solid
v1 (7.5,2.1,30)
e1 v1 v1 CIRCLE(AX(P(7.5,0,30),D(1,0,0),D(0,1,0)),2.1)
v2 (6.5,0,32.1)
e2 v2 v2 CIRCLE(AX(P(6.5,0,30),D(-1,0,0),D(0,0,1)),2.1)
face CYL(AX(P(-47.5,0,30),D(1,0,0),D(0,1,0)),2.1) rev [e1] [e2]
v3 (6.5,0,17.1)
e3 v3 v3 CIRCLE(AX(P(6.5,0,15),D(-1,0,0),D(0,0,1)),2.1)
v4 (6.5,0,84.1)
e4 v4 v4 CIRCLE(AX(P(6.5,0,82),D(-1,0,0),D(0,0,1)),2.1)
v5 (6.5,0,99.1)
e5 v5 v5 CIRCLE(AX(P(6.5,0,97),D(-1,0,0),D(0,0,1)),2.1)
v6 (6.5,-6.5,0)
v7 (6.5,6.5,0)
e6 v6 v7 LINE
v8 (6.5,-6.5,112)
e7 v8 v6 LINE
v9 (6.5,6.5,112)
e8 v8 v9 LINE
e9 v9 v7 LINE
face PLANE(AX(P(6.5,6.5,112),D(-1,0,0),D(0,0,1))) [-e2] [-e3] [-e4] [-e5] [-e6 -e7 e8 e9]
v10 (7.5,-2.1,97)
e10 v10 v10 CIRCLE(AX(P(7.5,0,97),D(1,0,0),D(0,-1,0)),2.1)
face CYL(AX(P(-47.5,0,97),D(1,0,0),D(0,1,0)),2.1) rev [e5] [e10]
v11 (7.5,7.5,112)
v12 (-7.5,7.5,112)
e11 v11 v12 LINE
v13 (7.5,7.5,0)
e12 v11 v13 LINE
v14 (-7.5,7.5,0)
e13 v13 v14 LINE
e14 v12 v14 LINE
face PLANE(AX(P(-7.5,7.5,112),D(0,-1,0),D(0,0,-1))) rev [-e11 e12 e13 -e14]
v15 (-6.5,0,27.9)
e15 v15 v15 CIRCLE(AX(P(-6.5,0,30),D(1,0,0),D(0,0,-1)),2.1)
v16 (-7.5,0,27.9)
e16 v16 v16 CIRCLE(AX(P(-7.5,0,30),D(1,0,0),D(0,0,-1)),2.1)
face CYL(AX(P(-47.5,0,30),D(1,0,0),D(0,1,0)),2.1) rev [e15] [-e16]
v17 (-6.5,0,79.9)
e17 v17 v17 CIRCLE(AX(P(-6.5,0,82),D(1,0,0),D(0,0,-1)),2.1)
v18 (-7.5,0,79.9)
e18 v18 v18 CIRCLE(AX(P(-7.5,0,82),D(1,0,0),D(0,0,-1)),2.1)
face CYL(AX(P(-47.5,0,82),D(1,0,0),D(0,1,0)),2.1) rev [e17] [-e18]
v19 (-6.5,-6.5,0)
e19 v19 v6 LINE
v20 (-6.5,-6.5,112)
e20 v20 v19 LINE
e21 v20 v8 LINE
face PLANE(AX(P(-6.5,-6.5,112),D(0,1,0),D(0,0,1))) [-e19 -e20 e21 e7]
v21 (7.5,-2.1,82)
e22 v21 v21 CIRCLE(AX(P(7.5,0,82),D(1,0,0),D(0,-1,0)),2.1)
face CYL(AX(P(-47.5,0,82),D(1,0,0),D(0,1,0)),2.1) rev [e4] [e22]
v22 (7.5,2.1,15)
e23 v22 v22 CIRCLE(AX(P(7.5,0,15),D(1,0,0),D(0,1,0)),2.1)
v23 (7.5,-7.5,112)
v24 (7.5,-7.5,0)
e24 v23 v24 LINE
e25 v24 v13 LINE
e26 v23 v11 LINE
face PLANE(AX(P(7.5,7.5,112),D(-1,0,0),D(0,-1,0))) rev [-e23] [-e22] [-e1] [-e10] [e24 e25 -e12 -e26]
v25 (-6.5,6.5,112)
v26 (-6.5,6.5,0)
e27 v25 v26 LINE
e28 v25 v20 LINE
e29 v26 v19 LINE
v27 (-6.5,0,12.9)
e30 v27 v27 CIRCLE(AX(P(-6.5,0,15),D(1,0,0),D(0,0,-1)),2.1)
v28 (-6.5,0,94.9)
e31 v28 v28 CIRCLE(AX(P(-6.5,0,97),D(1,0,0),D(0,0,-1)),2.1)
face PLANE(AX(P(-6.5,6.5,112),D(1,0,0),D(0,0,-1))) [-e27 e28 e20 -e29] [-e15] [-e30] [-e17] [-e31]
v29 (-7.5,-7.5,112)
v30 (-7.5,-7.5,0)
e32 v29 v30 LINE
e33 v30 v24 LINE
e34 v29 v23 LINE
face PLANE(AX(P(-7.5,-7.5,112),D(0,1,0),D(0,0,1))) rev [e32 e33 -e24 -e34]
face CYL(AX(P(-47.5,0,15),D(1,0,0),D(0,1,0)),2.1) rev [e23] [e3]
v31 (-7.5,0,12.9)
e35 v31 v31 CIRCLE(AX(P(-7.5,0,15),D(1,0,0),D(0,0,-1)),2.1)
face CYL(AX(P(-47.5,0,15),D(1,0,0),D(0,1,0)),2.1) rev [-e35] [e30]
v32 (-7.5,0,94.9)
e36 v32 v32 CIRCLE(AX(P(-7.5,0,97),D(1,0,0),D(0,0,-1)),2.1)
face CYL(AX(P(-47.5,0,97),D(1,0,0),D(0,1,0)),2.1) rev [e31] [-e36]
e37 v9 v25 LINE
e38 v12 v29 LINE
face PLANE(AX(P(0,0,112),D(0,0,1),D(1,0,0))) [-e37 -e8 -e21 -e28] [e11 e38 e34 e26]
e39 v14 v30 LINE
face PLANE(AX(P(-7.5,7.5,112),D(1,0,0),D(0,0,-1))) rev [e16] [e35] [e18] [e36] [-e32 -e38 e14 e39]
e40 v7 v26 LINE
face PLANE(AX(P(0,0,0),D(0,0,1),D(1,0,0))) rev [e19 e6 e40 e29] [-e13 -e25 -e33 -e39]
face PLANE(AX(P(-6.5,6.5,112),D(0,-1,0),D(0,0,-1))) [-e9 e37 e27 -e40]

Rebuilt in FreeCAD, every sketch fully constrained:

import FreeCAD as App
import Part
import Sketcher

V = App.Vector


def add_polygon(sketch, points):
    """Adds a closed chain of lines whose ends are joined by coincident constraints."""
    first, n = sketch.GeometryCount, len(points)
    for a, b in zip(points, points[1:] + points[:1]):
        sketch.addGeometry(Part.LineSegment(App.Vector(*a, 0), App.Vector(*b, 0)), False)
    for i in range(n):
        sketch.addConstraint(Sketcher.Constraint("Coincident", first + i, 2, first + (i + 1) % n, 1))

doc = App.newDocument("Part")
params = doc.addObject("Spreadsheet::Sheet", "Params")
for row, (alias, value) in enumerate([
    ("sketch1_width", "15 mm"),
    ("sketch1_width2", "13 mm"),
    ("pad1_length", "112 mm"),
    ("sketch2_diameter", "4.2 mm"),
    ("pocket1_length", "55 mm"),
], start=1):
    params.set(f"A{row}", alias)
    params.set(f"B{row}", "=" + value)
    params.setAlias(f"B{row}", alias)

body = doc.addObject("PartDesign::Body", "Body")

# Sketch on XY plane
sketch1 = body.newObject("Sketcher::SketchObject", "Sketch")
sketch1.AttachmentSupport = (doc.getObject("XY_Plane"), [""])
sketch1.MapMode = "FlatFace"
add_polygon(sketch1, [(-8, 8), (-8, -8), (8, -8), (8, 8)])  # lines 0-3
add_polygon(sketch1, [(6, -6), (-6, -6), (-6, 6), (6, 6)])  # lines 4-7
sketch1.addConstraint(Sketcher.Constraint("Vertical", 0))
sketch1.addConstraint(Sketcher.Constraint("Horizontal", 1))
sketch1.addConstraint(Sketcher.Constraint("Vertical", 2))
sketch1.addConstraint(Sketcher.Constraint("Horizontal", 3))
sketch1.addConstraint(Sketcher.Constraint("Horizontal", 4))
sketch1.addConstraint(Sketcher.Constraint("Vertical", 5))
sketch1.addConstraint(Sketcher.Constraint("Horizontal", 6))
sketch1.addConstraint(Sketcher.Constraint("Vertical", 7))
sketch1.addConstraint(Sketcher.Constraint("Symmetric", 0, 2, 2, 2, -1, 1))
sketch1.addConstraint(Sketcher.Constraint("Symmetric", 4, 2, 6, 2, -1, 1))
sketch1.addConstraint(Sketcher.Constraint("Equal", 3, 0))
sketch1.addConstraint(Sketcher.Constraint("Equal", 6, 5))
sketch1.addConstraint(Sketcher.Constraint("DistanceX", 1, 1, 1, 2, 15.0))
sketch1.addConstraint(Sketcher.Constraint("DistanceX", 4, 2, 4, 1, 13.0))
sketch1.setExpression("Constraints[20]", "Params.sketch1_width")
sketch1.setExpression("Constraints[21]", "Params.sketch1_width2")
pad1 = body.newObject("PartDesign::Pad", "Pad")
pad1.Profile = sketch1
pad1.setExpression("Length", "Params.pad1_length")

# Sketch on YZ plane
sketch2 = body.newObject("Sketcher::SketchObject", "Sketch001")
sketch2.AttachmentSupport = (doc.getObject("YZ_Plane"), [""])
sketch2.MapMode = "FlatFace"
sketch2.AttachmentOffset = App.Placement(V(0, 0, 7.5), App.Rotation())
sketch2.addGeometry(Part.Circle(V(0, 15, 0), V(0, 0, 1), 2.1), False)
sketch2.addGeometry(Part.Circle(V(0, 30, 0), V(0, 0, 1), 2.1), False)
sketch2.addGeometry(Part.Circle(V(0, 97, 0), V(0, 0, 1), 2.1), False)
sketch2.addGeometry(Part.Circle(V(0, 82, 0), V(0, 0, 1), 2.1), False)
sketch2.addConstraint(Sketcher.Constraint("Equal", 0, 1))
sketch2.addConstraint(Sketcher.Constraint("Equal", 1, 2))
sketch2.addConstraint(Sketcher.Constraint("Equal", 2, 3))
sketch2.addConstraint(Sketcher.Constraint("PointOnObject", 0, 3, -2))
sketch2.addConstraint(Sketcher.Constraint("PointOnObject", 1, 3, -2))
sketch2.addConstraint(Sketcher.Constraint("PointOnObject", 2, 3, -2))
sketch2.addConstraint(Sketcher.Constraint("PointOnObject", 3, 3, -2))
sketch2.addConstraint(Sketcher.Constraint("Diameter", 0, 4.2))
sketch2.addConstraint(Sketcher.Constraint("DistanceY", -1, 1, 0, 3, 15.0))
sketch2.addConstraint(Sketcher.Constraint("DistanceY", -1, 1, 1, 3, 30.0))
sketch2.addConstraint(Sketcher.Constraint("DistanceY", -1, 1, 2, 3, 97.0))
sketch2.addConstraint(Sketcher.Constraint("DistanceY", -1, 1, 3, 3, 82.0))
sketch2.setExpression("Constraints[7]", "Params.sketch2_diameter")
pocket1 = body.newObject("PartDesign::Pocket", "Pocket")
pocket1.Profile = sketch2
pocket1.setExpression("Length", "Params.pocket1_length")

doc.recompute()
